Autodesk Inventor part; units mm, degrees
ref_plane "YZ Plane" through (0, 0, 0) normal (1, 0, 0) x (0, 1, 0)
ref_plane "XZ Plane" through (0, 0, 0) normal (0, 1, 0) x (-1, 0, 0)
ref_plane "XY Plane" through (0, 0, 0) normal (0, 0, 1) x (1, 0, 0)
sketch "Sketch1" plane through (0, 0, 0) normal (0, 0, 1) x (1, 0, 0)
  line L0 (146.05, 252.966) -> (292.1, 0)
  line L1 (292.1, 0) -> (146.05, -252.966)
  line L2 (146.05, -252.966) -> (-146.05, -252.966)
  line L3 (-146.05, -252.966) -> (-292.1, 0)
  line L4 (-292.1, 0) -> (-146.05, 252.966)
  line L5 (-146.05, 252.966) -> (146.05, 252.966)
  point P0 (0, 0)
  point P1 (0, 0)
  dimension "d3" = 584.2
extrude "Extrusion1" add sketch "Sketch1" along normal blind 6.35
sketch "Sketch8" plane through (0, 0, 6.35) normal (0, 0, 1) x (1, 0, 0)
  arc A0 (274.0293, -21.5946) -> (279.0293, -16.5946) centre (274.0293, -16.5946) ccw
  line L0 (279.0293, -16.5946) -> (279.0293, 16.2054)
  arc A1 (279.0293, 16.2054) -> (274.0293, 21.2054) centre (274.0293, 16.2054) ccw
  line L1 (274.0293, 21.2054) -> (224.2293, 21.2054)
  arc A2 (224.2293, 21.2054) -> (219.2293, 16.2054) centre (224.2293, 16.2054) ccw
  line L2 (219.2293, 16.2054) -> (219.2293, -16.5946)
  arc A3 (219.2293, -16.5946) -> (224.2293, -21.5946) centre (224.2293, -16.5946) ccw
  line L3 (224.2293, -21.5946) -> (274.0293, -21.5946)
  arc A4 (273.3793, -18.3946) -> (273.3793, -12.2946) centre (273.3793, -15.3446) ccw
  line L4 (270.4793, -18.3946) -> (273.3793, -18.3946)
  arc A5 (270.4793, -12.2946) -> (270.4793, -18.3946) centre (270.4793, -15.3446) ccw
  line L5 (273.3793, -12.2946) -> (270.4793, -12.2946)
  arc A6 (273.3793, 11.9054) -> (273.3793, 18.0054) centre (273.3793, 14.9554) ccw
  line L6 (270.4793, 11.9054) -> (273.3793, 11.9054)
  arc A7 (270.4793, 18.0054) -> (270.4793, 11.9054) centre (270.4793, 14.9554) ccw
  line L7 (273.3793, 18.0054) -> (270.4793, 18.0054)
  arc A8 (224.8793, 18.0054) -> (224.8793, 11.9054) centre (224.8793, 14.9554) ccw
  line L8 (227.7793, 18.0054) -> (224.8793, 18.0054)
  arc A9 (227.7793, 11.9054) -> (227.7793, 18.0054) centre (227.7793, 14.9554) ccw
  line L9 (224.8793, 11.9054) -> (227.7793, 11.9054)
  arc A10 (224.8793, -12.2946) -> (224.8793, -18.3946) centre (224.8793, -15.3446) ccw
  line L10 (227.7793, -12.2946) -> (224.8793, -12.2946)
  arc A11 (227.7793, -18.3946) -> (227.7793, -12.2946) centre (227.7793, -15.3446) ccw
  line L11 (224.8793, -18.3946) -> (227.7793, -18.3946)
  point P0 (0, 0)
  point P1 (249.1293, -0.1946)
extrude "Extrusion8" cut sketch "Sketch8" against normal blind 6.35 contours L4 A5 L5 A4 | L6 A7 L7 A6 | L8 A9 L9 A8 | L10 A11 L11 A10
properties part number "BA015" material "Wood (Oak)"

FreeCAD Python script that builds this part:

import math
import FreeCAD as App
import Part
import Sketcher
from FreeCAD import Vector
Q = App.Units.Quantity

doc = App.newDocument("Part")
body = doc.addObject("PartDesign::Body", "Body")

# Sketch on XY plane
sketch1 = doc.addObject("Sketcher::SketchObject", "Sketch")
body.addObject(sketch1)
sketch1.AttachmentSupport = (doc.XY_Plane, [""])
sketch1.MapMode = "FlatFace"
sketch1.addGeometry(Part.LineSegment(Vector(292, 0, 0), Vector(146, 253, 0)), False)
sketch1.addGeometry(Part.LineSegment(Vector(146, 253, 0), Vector(-146, 253, 0)), False)
sketch1.addGeometry(Part.LineSegment(Vector(-146, 253, 0), Vector(-292, 0, 0)), False)
sketch1.addGeometry(Part.LineSegment(Vector(-292, 0, 0), Vector(-146, -253, 0)), False)
sketch1.addGeometry(Part.LineSegment(Vector(-146, -253, 0), Vector(146, -253, 0)), False)
sketch1.addGeometry(Part.LineSegment(Vector(146, -253, 0), Vector(292, 0, 0)), False)
sketch1.addConstraint(Sketcher.Constraint("Coincident", 0, 2, 1, 1))
sketch1.addConstraint(Sketcher.Constraint("Coincident", 1, 2, 2, 1))
sketch1.addConstraint(Sketcher.Constraint("Coincident", 2, 2, 3, 1))
sketch1.addConstraint(Sketcher.Constraint("Coincident", 3, 2, 4, 1))
sketch1.addConstraint(Sketcher.Constraint("Coincident", 4, 2, 5, 1))
sketch1.addConstraint(Sketcher.Constraint("Coincident", 5, 2, 0, 1))
sketch1.addConstraint(Sketcher.Constraint("Horizontal", 1))
sketch1.addConstraint(Sketcher.Constraint("Horizontal", 4))
sketch1.addConstraint(Sketcher.Constraint("Symmetric", 0, 2, 3, 2, -1, 1))
sketch1.addConstraint(Sketcher.Constraint("Symmetric", 2, 2, 5, 2, -1, 1))
sketch1.addConstraint(Sketcher.Constraint("PointOnObject", 2, 2, -1))
sketch1.addConstraint(Sketcher.Constraint("Parallel", 2, 5))
sketch1.addConstraint(Sketcher.Constraint("Vertical", 1, 2, 3, 2))
sketch1.addConstraint(Sketcher.Constraint("DistanceX", 2, 2, 5, 2, Q("23 in")))
sketch1.addConstraint(Sketcher.Constraint("DistanceX", 1, 2, 1, 1, Q("11.5 in")))
sketch1.addConstraint(Sketcher.Constraint("Angle", 0, Q("120 deg")))
pad1 = doc.addObject("PartDesign::Pad", "Pad")
body.addObject(pad1)
pad1.Profile = sketch1
pad1.Length = Q("0.25 in")

# Sketch on XY plane
sketch2 = doc.addObject("Sketcher::SketchObject", "Sketch001")
body.addObject(sketch2)
sketch2.AttachmentSupport = (doc.XY_Plane, [""])
sketch2.MapMode = "FlatFace"
sketch2.AttachmentOffset = App.Placement(Vector(0, 0, 0.25 * 25.4), App.Rotation())
sketch2.addGeometry(Part.LineSegment(Vector(270.5, -18.4, 0), Vector(273.4, -18.4, 0)), False)
sketch2.addGeometry(Part.ArcOfCircle(Part.Circle(Vector(273.4, -15.3, 0), Vector(0, 0, 1), 3.1), math.radians(-90), math.radians(90)), False)
sketch2.addGeometry(Part.LineSegment(Vector(273.4, -12.3, 0), Vector(270.5, -12.3, 0)), False)
sketch2.addGeometry(Part.ArcOfCircle(Part.Circle(Vector(270.5, -15.3, 0), Vector(0, 0, 1), 3), math.radians(90), math.radians(270)), False)
sketch2.addGeometry(Part.LineSegment(Vector(270.5, 11.9, 0), Vector(273.4, 11.9, 0)), False)
sketch2.addGeometry(Part.ArcOfCircle(Part.Circle(Vector(273.4, 15, 0), Vector(0, 0, 1), 3), math.radians(-90), math.radians(90)), False)
sketch2.addGeometry(Part.LineSegment(Vector(273.4, 18, 0), Vector(270.5, 18, 0)), False)
sketch2.addGeometry(Part.ArcOfCircle(Part.Circle(Vector(270.5, 15, 0), Vector(0, 0, 1), 3.1), math.radians(90), math.radians(270)), False)
sketch2.addGeometry(Part.LineSegment(Vector(227.8, 18, 0), Vector(224.9, 18, 0)), False)
sketch2.addGeometry(Part.ArcOfCircle(Part.Circle(Vector(224.9, 15, 0), Vector(0, 0, 1), 3.1), math.radians(90), math.radians(270)), False)
sketch2.addGeometry(Part.LineSegment(Vector(224.9, 11.9, 0), Vector(227.8, 11.9, 0)), False)
sketch2.addGeometry(Part.ArcOfCircle(Part.Circle(Vector(227.8, 15, 0), Vector(0, 0, 1), 3), math.radians(-90), math.radians(90)), False)
sketch2.addGeometry(Part.LineSegment(Vector(227.8, -12.3, 0), Vector(224.9, -12.3, 0)), False)
sketch2.addGeometry(Part.ArcOfCircle(Part.Circle(Vector(224.9, -15.3, 0), Vector(0, 0, 1), 3), math.radians(90), math.radians(270)), False)
sketch2.addGeometry(Part.LineSegment(Vector(224.9, -18.4, 0), Vector(227.8, -18.4, 0)), False)
sketch2.addGeometry(Part.ArcOfCircle(Part.Circle(Vector(227.8, -15.3, 0), Vector(0, 0, 1), 3.1), math.radians(-90), math.radians(90)), False)
sketch2.addConstraint(Sketcher.Constraint("Tangent", 0, 2, 1, 1))
sketch2.addConstraint(Sketcher.Constraint("Tangent", 1, 2, 2, 1))
sketch2.addConstraint(Sketcher.Constraint("Tangent", 2, 2, 3, 1))
sketch2.addConstraint(Sketcher.Constraint("Tangent", 3, 2, 0, 1))
sketch2.addConstraint(Sketcher.Constraint("Tangent", 4, 2, 5, 1))
sketch2.addConstraint(Sketcher.Constraint("Tangent", 5, 2, 6, 1))
sketch2.addConstraint(Sketcher.Constraint("Tangent", 6, 2, 7, 1))
sketch2.addConstraint(Sketcher.Constraint("Tangent", 7, 2, 4, 1))
sketch2.addConstraint(Sketcher.Constraint("Tangent", 8, 2, 9, 1))
sketch2.addConstraint(Sketcher.Constraint("Tangent", 9, 2, 10, 1))
sketch2.addConstraint(Sketcher.Constraint("Tangent", 10, 2, 11, 1))
sketch2.addConstraint(Sketcher.Constraint("Tangent", 11, 2, 8, 1))
sketch2.addConstraint(Sketcher.Constraint("Tangent", 12, 2, 13, 1))
sketch2.addConstraint(Sketcher.Constraint("Tangent", 13, 2, 14, 1))
sketch2.addConstraint(Sketcher.Constraint("Tangent", 14, 2, 15, 1))
sketch2.addConstraint(Sketcher.Constraint("Tangent", 15, 2, 12, 1))
sketch2.addConstraint(Sketcher.Constraint("Horizontal", 0))
sketch2.addConstraint(Sketcher.Constraint("Horizontal", 2))
sketch2.addConstraint(Sketcher.Constraint("Horizontal", 4))
sketch2.addConstraint(Sketcher.Constraint("Horizontal", 6))
sketch2.addConstraint(Sketcher.Constraint("Horizontal", 8))
sketch2.addConstraint(Sketcher.Constraint("Horizontal", 10))
sketch2.addConstraint(Sketcher.Constraint("Horizontal", 12))
sketch2.addConstraint(Sketcher.Constraint("Horizontal", 14))
sketch2.addConstraint(Sketcher.Constraint("Equal", 3, 5))
sketch2.addConstraint(Sketcher.Constraint("Equal", 7, 9))
sketch2.addConstraint(Sketcher.Constraint("Equal", 11, 13))
sketch2.addConstraint(Sketcher.Constraint("Horizontal", 7, 3, 9, 3))
sketch2.addConstraint(Sketcher.Constraint("Horizontal", 3, 3, 13, 3))
sketch2.addConstraint(Sketcher.Constraint("Vertical", 1, 3, 5, 3))
sketch2.addConstraint(Sketcher.Constraint("Vertical", 3, 3, 7, 3))
sketch2.addConstraint(Sketcher.Constraint("Vertical", 9, 3, 13, 3))
sketch2.addConstraint(Sketcher.Constraint("Vertical", 11, 3, 15, 3))
sketch2.addConstraint(Sketcher.Constraint("Equal", 6, 8))
sketch2.addConstraint(Sketcher.Constraint("Radius", 1, 3.05))
sketch2.addConstraint(Sketcher.Constraint("DistanceY", 0, 2, 5, 3, Q("1.313 in")))
sketch2.addConstraint(Sketcher.Constraint("DistanceX", 0, 1, 0, 2, 2.9))
sketch2.addConstraint(Sketcher.Constraint("DistanceX", -1, 1, 3, 3, Q("10.6488 in")))
sketch2.addConstraint(Sketcher.Constraint("DistanceY", -1, 1, 5, 3, Q("0.5888 in")))
sketch2.addConstraint(Sketcher.Constraint("DistanceX", -1, 1, 11, 3, Q("8.9677 in")))
pocket1 = doc.addObject("PartDesign::Pocket", "Pocket")
body.addObject(pocket1)
pocket1.Profile = sketch2
pocket1.Length = Q("0.25 in")

doc.recompute()
